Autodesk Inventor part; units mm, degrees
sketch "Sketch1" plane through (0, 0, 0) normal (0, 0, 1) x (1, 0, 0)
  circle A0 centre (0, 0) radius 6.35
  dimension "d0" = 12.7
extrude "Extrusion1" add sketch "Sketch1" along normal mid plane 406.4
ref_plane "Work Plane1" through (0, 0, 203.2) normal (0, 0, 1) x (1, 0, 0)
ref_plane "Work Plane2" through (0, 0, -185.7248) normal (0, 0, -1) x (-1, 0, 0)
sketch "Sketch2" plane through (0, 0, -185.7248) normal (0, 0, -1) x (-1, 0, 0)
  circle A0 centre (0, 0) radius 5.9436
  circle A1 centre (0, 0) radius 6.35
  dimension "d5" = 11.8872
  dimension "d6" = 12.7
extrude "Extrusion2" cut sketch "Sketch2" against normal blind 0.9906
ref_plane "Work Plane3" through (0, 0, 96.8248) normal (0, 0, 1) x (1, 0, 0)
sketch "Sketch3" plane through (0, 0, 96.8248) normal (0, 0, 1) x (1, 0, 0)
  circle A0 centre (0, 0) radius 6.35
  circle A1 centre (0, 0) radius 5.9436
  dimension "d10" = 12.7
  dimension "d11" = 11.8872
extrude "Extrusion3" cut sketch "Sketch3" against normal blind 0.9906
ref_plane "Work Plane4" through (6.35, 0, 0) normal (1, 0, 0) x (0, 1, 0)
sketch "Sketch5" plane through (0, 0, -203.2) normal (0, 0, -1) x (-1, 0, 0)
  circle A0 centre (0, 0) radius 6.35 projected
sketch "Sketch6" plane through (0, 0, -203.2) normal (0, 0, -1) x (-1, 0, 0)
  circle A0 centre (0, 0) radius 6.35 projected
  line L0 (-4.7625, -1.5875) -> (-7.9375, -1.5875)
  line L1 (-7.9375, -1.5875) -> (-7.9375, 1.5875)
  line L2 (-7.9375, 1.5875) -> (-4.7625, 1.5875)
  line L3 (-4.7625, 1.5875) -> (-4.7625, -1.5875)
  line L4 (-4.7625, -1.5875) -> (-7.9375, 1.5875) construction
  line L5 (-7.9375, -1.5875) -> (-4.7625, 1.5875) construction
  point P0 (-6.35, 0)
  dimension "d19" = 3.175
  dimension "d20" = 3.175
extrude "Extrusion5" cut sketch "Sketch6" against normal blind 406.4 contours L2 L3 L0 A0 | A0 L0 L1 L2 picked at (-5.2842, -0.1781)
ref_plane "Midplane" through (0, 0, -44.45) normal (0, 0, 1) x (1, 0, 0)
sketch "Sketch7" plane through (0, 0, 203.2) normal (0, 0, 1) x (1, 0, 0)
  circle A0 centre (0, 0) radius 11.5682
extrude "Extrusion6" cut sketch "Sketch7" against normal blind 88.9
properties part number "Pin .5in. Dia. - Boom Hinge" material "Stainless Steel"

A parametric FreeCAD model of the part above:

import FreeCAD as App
import Part
import Sketcher
Q = App.Units.Quantity

doc = App.newDocument("Part")
body = doc.addObject("PartDesign::Body", "Body")

# Sketch on XY plane
sketch1 = body.newObject("Sketcher::SketchObject", "Sketch")
sketch1.AttachmentSupport = (doc.getObject("XY_Plane"), [""])
sketch1.MapMode = "FlatFace"
sketch1.addGeometry(Part.Circle(App.Vector(0, 0, 0), App.Vector(0, 0, 1), 6), False)
sketch1.addConstraint([
    Sketcher.Constraint("Coincident", 0, 3, -1, 1),
    Sketcher.Constraint("Diameter", 0, Q("0.5 in")),
])
pad1 = body.newObject("PartDesign::Pad", "Pad")
pad1.Profile = sketch1
pad1.Length = Q("16 in")
pad1.Midplane = True

# Sketch on XY plane
sketch2 = body.newObject("Sketcher::SketchObject", "Sketch001")
sketch2.AttachmentSupport = (doc.getObject("XY_Plane"), [""])
sketch2.MapMode = "FlatFace"
sketch2.AttachmentOffset = App.Placement(App.Vector(0, 0, -7.312 * 25.4), App.Rotation())
sketch2.addGeometry([
    Part.Circle(App.Vector(0, 0, 0), App.Vector(0, 0, 1), 6),
    Part.Circle(App.Vector(0, 0, 0), App.Vector(0, 0, 1), 6),
], False)
sketch2.addConstraint([
    Sketcher.Constraint("Coincident", 0, 3, -1, 1),
    Sketcher.Constraint("Coincident", 1, 3, -1, 1),
    Sketcher.Constraint("Diameter", 0, Q("0.5 in")),
    Sketcher.Constraint("Diameter", 1, Q("0.468 in")),
])
pocket1 = body.newObject("PartDesign::Pocket", "Pocket")
pocket1.Profile = sketch2
pocket1.Length = Q("0.039 in")
pocket1.Reversed = True

# Sketch on XY plane
sketch3 = body.newObject("Sketcher::SketchObject", "Sketch002")
sketch3.AttachmentSupport = (doc.getObject("XY_Plane"), [""])
sketch3.MapMode = "FlatFace"
sketch3.AttachmentOffset = App.Placement(App.Vector(0, 0, 3.812 * 25.4), App.Rotation())
sketch3.addGeometry([
    Part.Circle(App.Vector(0, 0, 0), App.Vector(0, 0, 1), 6),
    Part.Circle(App.Vector(0, 0, 0), App.Vector(0, 0, 1), 6),
], False)
sketch3.addConstraint([
    Sketcher.Constraint("Coincident", 0, 3, -1, 1),
    Sketcher.Constraint("Coincident", 1, 3, -1, 1),
    Sketcher.Constraint("Diameter", 0, Q("0.5 in")),
    Sketcher.Constraint("Diameter", 1, Q("0.468 in")),
])
pocket2 = body.newObject("PartDesign::Pocket", "Pocket001")
pocket2.Profile = sketch3
pocket2.Length = Q("0.039 in")

# Sketch on XY plane
sketch4 = body.newObject("Sketcher::SketchObject", "Sketch003")
sketch4.AttachmentSupport = (doc.getObject("XY_Plane"), [""])
sketch4.MapMode = "FlatFace"
sketch4.AttachmentOffset = App.Placement(App.Vector(0, 0, -8 * 25.4), App.Rotation())
sketch4.addGeometry([
    Part.LineSegment(App.Vector(4.8, 1.6, 0), App.Vector(7.9, 1.6, 0)),
    Part.LineSegment(App.Vector(7.9, 1.6, 0), App.Vector(7.9, -1.6, 0)),
    Part.LineSegment(App.Vector(7.9, -1.6, 0), App.Vector(4.8, -1.6, 0)),
    Part.LineSegment(App.Vector(4.8, -1.6, 0), App.Vector(4.8, 1.6, 0)),
], False)
sketch4.addConstraint([
    Sketcher.Constraint("Coincident", 0, 2, 1, 1),
    Sketcher.Constraint("Coincident", 1, 2, 2, 1),
    Sketcher.Constraint("Coincident", 2, 2, 3, 1),
    Sketcher.Constraint("Coincident", 3, 2, 0, 1),
    Sketcher.Constraint("Horizontal", 0),
    Sketcher.Constraint("Vertical", 1),
    Sketcher.Constraint("Horizontal", 2),
    Sketcher.Constraint("Vertical", 3),
    Sketcher.Constraint("Equal", 2, 1),
    Sketcher.Constraint("DistanceX", 0, 1, 0, 2, Q("0.125 in")),
    Sketcher.Constraint("DistanceX", -1, 1, 0, 2, Q("0.3125 in")),
    Sketcher.Constraint("DistanceY", -1, 1, 0, 2, Q("0.0625 in")),
])
pocket3 = body.newObject("PartDesign::Pocket", "Pocket002")
pocket3.Profile = sketch4
pocket3.Length = Q("16 in")
pocket3.Reversed = True

# Sketch on XY plane
sketch5 = body.newObject("Sketcher::SketchObject", "Sketch004")
sketch5.AttachmentSupport = (doc.getObject("XY_Plane"), [""])
sketch5.MapMode = "FlatFace"
sketch5.AttachmentOffset = App.Placement(App.Vector(0, 0, 8 * 25.4), App.Rotation())
sketch5.addGeometry(Part.Circle(App.Vector(0, 0, 0), App.Vector(0, 0, 1), 12), False)
sketch5.addConstraint([
    Sketcher.Constraint("Coincident", 0, 3, -1, 1),
    Sketcher.Constraint("Diameter", 0, Q("23.1364 mm")),
])
pocket4 = body.newObject("PartDesign::Pocket", "Pocket003")
pocket4.Profile = sketch5
pocket4.Length = Q("3.5 in")

doc.recompute()
